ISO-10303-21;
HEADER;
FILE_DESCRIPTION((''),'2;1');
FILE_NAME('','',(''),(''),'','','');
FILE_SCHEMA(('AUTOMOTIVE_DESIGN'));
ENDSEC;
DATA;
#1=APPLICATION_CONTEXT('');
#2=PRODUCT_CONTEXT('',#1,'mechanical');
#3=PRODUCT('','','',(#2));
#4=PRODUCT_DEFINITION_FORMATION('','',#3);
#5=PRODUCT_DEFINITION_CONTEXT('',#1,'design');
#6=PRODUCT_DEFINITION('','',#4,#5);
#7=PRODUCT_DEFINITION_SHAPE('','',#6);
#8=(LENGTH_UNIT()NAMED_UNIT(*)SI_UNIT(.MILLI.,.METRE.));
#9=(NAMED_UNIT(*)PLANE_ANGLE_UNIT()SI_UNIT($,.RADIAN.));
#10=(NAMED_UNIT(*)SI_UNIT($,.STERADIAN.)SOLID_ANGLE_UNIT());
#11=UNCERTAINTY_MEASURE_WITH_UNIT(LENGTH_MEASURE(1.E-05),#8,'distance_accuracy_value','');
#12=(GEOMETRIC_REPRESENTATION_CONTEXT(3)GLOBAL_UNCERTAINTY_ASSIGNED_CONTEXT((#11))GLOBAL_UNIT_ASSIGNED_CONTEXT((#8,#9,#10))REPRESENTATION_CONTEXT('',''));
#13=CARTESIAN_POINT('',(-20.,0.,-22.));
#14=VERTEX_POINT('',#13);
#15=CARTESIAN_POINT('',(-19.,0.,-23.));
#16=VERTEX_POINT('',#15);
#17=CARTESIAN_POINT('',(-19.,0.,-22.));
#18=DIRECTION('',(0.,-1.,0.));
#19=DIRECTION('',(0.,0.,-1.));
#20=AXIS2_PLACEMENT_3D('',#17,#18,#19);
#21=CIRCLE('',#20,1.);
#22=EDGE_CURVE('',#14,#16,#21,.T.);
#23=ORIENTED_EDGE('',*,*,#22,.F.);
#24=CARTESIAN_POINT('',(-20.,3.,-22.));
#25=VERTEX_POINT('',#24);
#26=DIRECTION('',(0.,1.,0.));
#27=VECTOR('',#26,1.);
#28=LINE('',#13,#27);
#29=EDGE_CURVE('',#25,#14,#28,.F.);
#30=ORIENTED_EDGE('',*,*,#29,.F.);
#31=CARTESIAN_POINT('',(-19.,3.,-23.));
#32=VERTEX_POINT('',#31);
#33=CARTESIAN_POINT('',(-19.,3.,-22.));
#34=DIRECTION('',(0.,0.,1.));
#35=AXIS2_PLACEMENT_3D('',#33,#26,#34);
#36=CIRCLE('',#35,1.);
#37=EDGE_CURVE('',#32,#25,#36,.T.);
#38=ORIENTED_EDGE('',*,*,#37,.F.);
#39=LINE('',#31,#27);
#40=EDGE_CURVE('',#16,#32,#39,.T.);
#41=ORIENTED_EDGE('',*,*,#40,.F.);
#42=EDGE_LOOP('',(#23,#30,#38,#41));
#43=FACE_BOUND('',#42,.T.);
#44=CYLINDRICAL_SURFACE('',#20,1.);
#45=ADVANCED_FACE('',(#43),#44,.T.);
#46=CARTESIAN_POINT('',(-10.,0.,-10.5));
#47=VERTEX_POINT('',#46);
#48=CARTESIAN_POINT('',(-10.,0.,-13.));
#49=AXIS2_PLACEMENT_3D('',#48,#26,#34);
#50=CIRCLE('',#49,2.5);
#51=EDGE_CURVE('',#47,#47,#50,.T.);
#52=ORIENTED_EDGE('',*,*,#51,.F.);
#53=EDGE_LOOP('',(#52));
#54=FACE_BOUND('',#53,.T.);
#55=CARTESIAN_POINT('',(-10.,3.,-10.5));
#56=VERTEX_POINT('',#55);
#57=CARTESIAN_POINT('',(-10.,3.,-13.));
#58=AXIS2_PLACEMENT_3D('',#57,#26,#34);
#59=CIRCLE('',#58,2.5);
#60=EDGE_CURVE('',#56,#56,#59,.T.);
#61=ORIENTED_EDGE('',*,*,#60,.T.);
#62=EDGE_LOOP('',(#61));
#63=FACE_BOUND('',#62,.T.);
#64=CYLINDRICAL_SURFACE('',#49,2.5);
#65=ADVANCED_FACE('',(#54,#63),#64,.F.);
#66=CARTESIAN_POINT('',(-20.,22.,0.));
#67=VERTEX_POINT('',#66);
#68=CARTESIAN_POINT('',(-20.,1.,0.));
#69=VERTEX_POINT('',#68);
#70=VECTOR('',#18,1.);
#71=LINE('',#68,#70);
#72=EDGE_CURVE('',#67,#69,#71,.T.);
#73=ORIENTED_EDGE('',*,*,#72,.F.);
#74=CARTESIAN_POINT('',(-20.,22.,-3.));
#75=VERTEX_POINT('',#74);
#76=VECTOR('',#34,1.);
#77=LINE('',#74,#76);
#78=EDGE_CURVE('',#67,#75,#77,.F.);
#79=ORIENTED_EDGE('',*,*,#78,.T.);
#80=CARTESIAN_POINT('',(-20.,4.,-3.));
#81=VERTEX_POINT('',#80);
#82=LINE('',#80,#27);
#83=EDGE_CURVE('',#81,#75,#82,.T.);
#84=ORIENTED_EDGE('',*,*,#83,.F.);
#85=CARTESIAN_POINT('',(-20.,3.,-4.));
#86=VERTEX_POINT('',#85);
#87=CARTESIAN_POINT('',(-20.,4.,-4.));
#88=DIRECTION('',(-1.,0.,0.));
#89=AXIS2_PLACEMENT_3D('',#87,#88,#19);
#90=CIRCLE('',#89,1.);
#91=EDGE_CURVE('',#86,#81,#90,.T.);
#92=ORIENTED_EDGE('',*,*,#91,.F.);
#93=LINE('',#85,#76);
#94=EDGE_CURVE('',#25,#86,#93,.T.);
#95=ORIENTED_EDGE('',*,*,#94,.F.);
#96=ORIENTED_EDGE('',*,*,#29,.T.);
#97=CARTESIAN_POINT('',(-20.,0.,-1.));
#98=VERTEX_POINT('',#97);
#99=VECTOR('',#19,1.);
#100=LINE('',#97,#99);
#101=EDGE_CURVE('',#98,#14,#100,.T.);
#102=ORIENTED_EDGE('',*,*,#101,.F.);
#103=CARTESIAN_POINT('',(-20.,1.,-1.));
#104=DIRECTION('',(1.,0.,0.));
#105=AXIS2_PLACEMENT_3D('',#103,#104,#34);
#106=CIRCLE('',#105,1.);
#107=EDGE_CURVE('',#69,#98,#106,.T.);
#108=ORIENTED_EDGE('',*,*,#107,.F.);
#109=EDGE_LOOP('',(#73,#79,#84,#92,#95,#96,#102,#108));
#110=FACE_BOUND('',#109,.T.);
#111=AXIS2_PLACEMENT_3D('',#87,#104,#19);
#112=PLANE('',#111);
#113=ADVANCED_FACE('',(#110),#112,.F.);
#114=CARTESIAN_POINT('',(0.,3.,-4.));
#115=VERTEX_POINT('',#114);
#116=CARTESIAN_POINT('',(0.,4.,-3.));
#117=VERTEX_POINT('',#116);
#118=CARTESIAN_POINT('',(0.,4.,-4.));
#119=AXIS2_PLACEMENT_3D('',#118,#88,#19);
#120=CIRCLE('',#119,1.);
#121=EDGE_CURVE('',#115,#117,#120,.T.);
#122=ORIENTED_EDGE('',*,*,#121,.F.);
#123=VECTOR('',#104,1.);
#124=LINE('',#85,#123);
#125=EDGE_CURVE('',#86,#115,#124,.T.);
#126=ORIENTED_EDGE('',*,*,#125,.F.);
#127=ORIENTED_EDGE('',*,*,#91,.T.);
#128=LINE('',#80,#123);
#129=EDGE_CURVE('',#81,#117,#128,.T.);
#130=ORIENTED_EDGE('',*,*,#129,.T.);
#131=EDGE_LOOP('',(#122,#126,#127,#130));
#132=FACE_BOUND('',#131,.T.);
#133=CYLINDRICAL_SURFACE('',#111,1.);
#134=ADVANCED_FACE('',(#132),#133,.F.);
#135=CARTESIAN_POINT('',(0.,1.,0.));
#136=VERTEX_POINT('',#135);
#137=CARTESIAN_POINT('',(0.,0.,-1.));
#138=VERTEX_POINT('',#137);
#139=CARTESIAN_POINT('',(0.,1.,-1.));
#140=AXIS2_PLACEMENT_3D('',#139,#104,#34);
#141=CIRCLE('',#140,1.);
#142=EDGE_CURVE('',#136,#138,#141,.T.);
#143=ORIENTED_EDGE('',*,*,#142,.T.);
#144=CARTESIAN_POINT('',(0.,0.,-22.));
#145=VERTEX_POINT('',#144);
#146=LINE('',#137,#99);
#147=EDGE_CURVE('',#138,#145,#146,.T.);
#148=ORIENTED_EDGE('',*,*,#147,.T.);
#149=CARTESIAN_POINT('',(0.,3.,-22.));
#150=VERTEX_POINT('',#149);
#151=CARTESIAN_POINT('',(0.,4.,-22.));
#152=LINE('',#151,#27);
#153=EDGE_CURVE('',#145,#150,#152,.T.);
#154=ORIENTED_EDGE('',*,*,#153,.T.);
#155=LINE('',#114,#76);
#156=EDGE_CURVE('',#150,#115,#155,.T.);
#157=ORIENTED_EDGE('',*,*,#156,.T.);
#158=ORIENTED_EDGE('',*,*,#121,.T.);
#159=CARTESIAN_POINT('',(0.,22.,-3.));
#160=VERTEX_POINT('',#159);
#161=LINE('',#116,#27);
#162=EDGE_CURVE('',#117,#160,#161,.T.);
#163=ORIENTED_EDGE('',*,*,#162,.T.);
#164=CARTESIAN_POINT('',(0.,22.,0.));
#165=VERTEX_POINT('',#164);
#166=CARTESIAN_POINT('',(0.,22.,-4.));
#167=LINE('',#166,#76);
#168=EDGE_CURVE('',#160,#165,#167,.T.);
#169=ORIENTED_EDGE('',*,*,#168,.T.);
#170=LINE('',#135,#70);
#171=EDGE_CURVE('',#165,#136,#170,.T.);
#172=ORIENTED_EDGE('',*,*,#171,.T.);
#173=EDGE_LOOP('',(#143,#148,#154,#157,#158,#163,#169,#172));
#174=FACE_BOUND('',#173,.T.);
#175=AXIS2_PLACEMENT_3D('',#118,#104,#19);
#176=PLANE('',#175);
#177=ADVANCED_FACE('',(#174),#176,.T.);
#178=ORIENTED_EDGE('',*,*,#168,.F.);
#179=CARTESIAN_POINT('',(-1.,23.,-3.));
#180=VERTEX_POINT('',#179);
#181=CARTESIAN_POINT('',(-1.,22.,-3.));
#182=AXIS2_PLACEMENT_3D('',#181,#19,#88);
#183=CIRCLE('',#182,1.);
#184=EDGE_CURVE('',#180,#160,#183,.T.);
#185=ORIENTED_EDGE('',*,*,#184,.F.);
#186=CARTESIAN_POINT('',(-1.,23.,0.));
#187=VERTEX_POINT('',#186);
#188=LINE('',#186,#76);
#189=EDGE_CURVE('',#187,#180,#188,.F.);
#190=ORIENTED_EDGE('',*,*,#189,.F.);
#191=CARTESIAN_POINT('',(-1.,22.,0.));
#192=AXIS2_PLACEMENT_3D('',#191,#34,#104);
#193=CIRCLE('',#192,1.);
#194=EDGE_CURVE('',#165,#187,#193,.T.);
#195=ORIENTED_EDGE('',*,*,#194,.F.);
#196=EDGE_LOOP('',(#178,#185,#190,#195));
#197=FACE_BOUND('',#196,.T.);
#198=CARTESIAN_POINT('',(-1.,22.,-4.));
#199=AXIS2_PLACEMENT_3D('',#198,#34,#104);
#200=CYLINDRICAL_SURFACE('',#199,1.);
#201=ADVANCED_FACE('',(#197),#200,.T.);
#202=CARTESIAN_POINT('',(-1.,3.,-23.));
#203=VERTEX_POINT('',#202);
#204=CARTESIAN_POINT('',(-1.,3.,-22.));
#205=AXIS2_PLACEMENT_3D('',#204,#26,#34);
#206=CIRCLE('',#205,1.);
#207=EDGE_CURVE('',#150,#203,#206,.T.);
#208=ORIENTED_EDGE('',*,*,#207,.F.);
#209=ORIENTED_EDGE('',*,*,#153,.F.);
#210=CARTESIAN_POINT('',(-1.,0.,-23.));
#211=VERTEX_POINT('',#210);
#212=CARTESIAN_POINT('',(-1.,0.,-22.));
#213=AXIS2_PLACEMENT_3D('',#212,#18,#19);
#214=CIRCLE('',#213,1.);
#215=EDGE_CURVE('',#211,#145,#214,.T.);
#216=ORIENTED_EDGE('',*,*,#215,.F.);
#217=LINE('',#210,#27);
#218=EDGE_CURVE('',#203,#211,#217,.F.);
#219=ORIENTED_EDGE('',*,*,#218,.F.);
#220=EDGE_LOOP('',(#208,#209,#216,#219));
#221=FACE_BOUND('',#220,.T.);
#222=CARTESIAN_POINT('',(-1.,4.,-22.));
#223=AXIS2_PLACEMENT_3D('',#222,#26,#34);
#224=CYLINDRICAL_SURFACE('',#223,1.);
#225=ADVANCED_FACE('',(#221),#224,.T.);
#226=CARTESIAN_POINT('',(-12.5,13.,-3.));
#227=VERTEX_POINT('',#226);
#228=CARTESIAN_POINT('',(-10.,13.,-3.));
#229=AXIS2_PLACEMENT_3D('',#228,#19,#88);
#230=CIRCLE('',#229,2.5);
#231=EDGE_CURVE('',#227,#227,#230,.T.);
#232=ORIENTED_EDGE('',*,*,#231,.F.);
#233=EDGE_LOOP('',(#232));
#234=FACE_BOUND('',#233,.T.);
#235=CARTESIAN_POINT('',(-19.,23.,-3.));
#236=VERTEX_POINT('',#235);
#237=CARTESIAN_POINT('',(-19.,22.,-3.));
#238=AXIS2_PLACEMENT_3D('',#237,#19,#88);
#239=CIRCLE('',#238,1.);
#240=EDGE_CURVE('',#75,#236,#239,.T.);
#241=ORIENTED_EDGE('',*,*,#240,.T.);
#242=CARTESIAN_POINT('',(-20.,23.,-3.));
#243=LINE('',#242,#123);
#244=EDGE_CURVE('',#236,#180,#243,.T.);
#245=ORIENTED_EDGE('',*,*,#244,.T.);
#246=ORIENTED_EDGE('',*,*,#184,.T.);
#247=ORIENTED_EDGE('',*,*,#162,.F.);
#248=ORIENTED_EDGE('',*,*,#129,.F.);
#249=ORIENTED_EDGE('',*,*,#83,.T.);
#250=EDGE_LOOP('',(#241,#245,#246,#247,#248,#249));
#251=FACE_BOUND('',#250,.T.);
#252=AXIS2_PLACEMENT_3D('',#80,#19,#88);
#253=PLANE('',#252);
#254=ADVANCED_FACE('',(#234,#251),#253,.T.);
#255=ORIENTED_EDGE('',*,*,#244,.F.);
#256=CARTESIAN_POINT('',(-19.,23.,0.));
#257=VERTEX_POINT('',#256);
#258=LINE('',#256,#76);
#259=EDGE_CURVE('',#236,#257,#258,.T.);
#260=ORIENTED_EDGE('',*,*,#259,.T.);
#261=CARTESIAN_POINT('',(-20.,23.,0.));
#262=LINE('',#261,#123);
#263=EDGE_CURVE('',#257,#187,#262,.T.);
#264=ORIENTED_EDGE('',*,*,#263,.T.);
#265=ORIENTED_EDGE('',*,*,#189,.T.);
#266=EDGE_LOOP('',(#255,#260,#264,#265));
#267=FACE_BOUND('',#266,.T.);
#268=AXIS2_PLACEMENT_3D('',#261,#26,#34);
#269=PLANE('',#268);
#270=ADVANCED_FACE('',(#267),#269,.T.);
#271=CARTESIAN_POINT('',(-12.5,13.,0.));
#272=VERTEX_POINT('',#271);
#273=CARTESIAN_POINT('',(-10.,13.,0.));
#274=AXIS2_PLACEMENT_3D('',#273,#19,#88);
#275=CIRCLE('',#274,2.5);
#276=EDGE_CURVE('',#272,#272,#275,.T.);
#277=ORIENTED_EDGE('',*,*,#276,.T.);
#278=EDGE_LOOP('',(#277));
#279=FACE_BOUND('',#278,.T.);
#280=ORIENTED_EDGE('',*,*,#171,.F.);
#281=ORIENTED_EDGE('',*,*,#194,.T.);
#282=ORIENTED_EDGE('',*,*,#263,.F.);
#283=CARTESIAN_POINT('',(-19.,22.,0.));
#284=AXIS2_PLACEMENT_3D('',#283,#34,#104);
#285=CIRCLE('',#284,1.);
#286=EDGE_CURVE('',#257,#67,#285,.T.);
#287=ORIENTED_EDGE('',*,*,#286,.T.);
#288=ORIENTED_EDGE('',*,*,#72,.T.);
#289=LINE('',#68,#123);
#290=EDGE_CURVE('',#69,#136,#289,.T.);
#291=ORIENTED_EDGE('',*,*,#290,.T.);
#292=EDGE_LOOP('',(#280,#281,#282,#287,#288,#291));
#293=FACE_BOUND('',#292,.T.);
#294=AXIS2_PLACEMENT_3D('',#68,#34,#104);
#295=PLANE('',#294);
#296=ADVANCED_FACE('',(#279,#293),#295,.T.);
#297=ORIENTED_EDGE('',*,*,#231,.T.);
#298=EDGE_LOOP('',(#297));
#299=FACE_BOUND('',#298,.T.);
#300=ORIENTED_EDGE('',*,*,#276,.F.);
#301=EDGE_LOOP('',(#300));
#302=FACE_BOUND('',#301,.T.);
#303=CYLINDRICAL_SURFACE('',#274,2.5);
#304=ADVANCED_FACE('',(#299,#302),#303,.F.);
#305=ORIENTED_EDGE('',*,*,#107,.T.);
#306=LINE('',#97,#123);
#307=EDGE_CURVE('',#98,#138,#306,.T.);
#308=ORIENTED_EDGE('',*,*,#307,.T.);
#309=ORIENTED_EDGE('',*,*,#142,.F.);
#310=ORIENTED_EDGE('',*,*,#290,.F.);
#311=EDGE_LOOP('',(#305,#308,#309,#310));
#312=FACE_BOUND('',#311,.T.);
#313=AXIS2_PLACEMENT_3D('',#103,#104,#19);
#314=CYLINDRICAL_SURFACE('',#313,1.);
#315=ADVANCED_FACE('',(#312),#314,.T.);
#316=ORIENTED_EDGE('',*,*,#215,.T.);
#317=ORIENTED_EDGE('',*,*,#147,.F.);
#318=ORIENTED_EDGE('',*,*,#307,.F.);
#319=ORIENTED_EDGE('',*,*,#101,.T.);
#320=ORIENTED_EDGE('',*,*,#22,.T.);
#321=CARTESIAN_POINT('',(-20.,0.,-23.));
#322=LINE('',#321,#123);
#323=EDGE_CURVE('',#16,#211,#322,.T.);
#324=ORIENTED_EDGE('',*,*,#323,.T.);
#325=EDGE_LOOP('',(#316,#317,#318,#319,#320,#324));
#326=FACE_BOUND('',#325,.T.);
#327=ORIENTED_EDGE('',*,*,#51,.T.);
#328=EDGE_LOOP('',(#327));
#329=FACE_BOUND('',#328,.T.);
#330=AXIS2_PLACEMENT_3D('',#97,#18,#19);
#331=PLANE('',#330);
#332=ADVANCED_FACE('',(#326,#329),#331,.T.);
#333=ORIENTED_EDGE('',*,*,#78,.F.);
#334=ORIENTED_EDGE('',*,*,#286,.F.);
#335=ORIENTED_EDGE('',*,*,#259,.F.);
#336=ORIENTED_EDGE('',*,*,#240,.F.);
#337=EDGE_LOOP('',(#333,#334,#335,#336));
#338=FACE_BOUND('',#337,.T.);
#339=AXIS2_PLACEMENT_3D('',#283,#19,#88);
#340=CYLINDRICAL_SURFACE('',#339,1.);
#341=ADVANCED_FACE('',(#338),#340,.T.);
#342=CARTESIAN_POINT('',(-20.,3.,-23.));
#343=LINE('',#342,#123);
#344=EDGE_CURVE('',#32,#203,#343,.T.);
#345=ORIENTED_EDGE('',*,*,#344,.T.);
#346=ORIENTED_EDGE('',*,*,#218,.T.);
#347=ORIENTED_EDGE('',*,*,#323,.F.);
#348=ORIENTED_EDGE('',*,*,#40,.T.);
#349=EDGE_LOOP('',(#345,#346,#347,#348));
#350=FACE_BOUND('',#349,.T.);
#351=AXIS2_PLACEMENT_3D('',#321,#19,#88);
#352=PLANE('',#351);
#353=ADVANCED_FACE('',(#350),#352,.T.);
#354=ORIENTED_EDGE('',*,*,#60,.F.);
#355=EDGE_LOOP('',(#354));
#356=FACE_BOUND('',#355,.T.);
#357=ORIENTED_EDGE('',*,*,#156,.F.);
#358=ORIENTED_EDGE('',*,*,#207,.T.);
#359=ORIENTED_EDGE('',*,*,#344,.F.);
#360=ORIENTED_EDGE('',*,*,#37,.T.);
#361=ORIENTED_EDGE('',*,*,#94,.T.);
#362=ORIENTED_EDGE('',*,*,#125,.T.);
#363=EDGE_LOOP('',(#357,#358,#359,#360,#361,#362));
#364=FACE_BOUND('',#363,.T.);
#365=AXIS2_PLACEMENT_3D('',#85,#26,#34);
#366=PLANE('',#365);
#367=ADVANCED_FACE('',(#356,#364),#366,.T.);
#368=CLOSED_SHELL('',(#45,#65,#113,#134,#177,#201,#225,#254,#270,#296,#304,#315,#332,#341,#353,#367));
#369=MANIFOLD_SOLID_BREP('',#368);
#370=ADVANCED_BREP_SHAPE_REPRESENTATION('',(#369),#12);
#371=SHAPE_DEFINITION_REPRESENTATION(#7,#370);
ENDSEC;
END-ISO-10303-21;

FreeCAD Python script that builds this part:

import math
import FreeCAD as App
import Part
import Sketcher
Q = App.Units.Quantity


def edges_at(feature, points):
    """Names of the edges that pass closest to the given points."""
    edges = feature.Shape.Edges
    near = lambda p: min(range(len(edges)), key=lambda i: edges[i].distToShape(Part.Vertex(*p))[0])
    return sorted({f"Edge{near(p) + 1}" for p in points})

doc = App.newDocument("Part")
params = doc.addObject("Spreadsheet::Sheet", "Params")
for row, (alias, value) in enumerate([
    ("sketch1_radius", "1 mm"),
    ("sketch1_width", "3 mm"),
    ("sketch1_width2", "19 mm"),
    ("pad1_length", "20 mm"),
    ("fillet_radius", "1 mm"),
    ("sketch2_diameter", "5 mm"),
    ("sketch3_diameter", "5 mm"),
], start=1):
    params.set(f"A{row}", alias)
    params.set(f"B{row}", "=" + value)
    params.setAlias(f"B{row}", alias)

body = doc.addObject("PartDesign::Body", "Body")

sketch1 = doc.addObject("Sketcher::SketchObject", "Sketch")
body.addObject(sketch1)
sketch1.AttachmentSupport = (doc.YZ_Plane, [""])
sketch1.MapMode = "FlatFace"
sketch1.addGeometry(Part.LineSegment(App.Vector(0, -1, 0), App.Vector(0, -23, 0)), False)
sketch1.addGeometry(Part.LineSegment(App.Vector(0, -23, 0), App.Vector(3, -23, 0)), False)
sketch1.addGeometry(Part.LineSegment(App.Vector(3, -23, 0), App.Vector(3, -4, 0)), False)
sketch1.addGeometry(Part.ArcOfCircle(Part.Circle(App.Vector(4, -4, 0), App.Vector(0, 0, 1), 1), math.radians(90), math.radians(180)), False)
sketch1.addGeometry(Part.LineSegment(App.Vector(4, -3, 0), App.Vector(23, -3, 0)), False)
sketch1.addGeometry(Part.LineSegment(App.Vector(23, -3, 0), App.Vector(23, 0, 0)), False)
sketch1.addGeometry(Part.LineSegment(App.Vector(23, 0, 0), App.Vector(1, 0, 0)), False)
sketch1.addGeometry(Part.ArcOfCircle(Part.Circle(App.Vector(1, -1, 0), App.Vector(0, 0, 1), 1), math.radians(90), math.radians(180)), False)
sketch1.addConstraint(Sketcher.Constraint("Coincident", 0, 2, 1, 1))
sketch1.addConstraint(Sketcher.Constraint("Coincident", 1, 2, 2, 1))
sketch1.addConstraint(Sketcher.Constraint("Tangent", 2, 2, 3, 2))
sketch1.addConstraint(Sketcher.Constraint("Tangent", 3, 1, 4, 1))
sketch1.addConstraint(Sketcher.Constraint("Coincident", 4, 2, 5, 1))
sketch1.addConstraint(Sketcher.Constraint("Coincident", 5, 2, 6, 1))
sketch1.addConstraint(Sketcher.Constraint("Tangent", 6, 2, 7, 1))
sketch1.addConstraint(Sketcher.Constraint("Tangent", 7, 2, 0, 1))
sketch1.addConstraint(Sketcher.Constraint("Vertical", 0))
sketch1.addConstraint(Sketcher.Constraint("Horizontal", 1))
sketch1.addConstraint(Sketcher.Constraint("Vertical", 2))
sketch1.addConstraint(Sketcher.Constraint("Horizontal", 4))
sketch1.addConstraint(Sketcher.Constraint("Vertical", 5))
sketch1.addConstraint(Sketcher.Constraint("Horizontal", 6))
sketch1.addConstraint(Sketcher.Constraint("Equal", 3, 7))
sketch1.addConstraint(Sketcher.Constraint("PointOnObject", 0, 2, -2))
sketch1.addConstraint(Sketcher.Constraint("PointOnObject", 5, 2, -1))
sketch1.addConstraint(Sketcher.Constraint("Equal", 6, 0))
sketch1.addConstraint(Sketcher.Constraint("Equal", 4, 2))
sketch1.addConstraint(Sketcher.Constraint("Radius", 3, Q("1 mm")))
sketch1.addConstraint(Sketcher.Constraint("DistanceX", 1, 1, 1, 2, Q("3 mm")))
sketch1.addConstraint(Sketcher.Constraint("DistanceX", 4, 1, 4, 2, Q("19 mm")))
sketch1.setExpression("Constraints[19]", "Params.sketch1_radius")
sketch1.setExpression("Constraints[20]", "Params.sketch1_width")
sketch1.setExpression("Constraints[21]", "Params.sketch1_width2")
pad1 = doc.addObject("PartDesign::Pad", "Pad")
body.addObject(pad1)
pad1.Profile = sketch1
pad1.setExpression("Length", "Params.pad1_length")
pad1.Reversed = True
doc.recompute()

fillet = doc.addObject("PartDesign::Fillet", "Fillet")
body.addObject(fillet)
fillet.Base = (pad1, edges_at(pad1, [
    (0, 1.5, -23),
    (-20, 23, -1.5),
    (-20, 1.5, -23),
    (0, 23, -1.5),
]))
fillet.setExpression("Radius", "Params.fillet_radius")

sketch2 = doc.addObject("Sketcher::SketchObject", "Sketch001")
body.addObject(sketch2)
sketch2.AttachmentSupport = (doc.XY_Plane, [""])
sketch2.MapMode = "FlatFace"
sketch2.AttachmentOffset = App.Placement(App.Vector(0, 0, -3), App.Rotation())
sketch2.addGeometry(Part.Circle(App.Vector(-10, 13, 0), App.Vector(0, 0, 1), 2.5), False)
sketch2.addConstraint(Sketcher.Constraint("Diameter", 0, Q("5 mm")))
sketch2.addConstraint(Sketcher.Constraint("DistanceX", 0, 3, -1, 1, Q("10 mm")))
sketch2.addConstraint(Sketcher.Constraint("DistanceY", -1, 1, 0, 3, Q("13 mm")))
sketch2.setExpression("Constraints[0]", "Params.sketch2_diameter")
pocket1 = doc.addObject("PartDesign::Pocket", "Pocket")
body.addObject(pocket1)
pocket1.Profile = sketch2
pocket1.Type = "ThroughAll"
pocket1.Reversed = True

sketch3 = doc.addObject("Sketcher::SketchObject", "Sketch002")
body.addObject(sketch3)
sketch3.AttachmentSupport = (doc.XZ_Plane, [""])
sketch3.MapMode = "FlatFace"
sketch3.AttachmentOffset = App.Placement(App.Vector(0, 0, -3), App.Rotation())
sketch3.addGeometry(Part.Circle(App.Vector(-10, -13, 0), App.Vector(0, 0, 1), 2.5), False)
sketch3.addConstraint(Sketcher.Constraint("Diameter", 0, Q("5 mm")))
sketch3.addConstraint(Sketcher.Constraint("DistanceX", 0, 3, -1, 1, Q("10 mm")))
sketch3.addConstraint(Sketcher.Constraint("DistanceY", 0, 3, -1, 1, Q("13 mm")))
sketch3.setExpression("Constraints[0]", "Params.sketch3_diameter")
pocket2 = doc.addObject("PartDesign::Pocket", "Pocket001")
body.addObject(pocket2)
pocket2.Profile = sketch3
pocket2.Type = "ThroughAll"
pocket2.Reversed = True

doc.recompute()
